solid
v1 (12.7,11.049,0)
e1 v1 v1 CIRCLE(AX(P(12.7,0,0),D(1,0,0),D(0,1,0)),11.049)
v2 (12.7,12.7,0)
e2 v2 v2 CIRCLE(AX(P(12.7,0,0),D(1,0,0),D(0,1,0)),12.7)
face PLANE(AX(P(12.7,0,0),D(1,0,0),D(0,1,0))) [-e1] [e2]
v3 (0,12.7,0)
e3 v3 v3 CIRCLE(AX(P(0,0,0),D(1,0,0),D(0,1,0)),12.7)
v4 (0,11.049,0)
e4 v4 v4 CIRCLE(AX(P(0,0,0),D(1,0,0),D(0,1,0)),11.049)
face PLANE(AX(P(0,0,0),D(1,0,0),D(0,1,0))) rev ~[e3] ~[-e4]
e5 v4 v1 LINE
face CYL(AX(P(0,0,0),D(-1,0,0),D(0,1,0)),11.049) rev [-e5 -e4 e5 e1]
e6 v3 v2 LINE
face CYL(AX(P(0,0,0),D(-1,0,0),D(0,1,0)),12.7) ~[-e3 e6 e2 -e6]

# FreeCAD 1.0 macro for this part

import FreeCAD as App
import Part
import Sketcher
from FreeCAD import Vector
Q = App.Units.Quantity

doc = App.newDocument("Part")
body = doc.addObject("PartDesign::Body", "Body")

sketch1 = body.newObject("Sketcher::SketchObject", "Sketch")
sketch1.AttachmentSupport = (doc.getObject("YZ_Plane"), [""])
sketch1.MapMode = "FlatFace"
sketch1.addGeometry([
    Part.Circle(Vector(0, 0, 0), Vector(0, 0, 1), 13),
    Part.Circle(Vector(0, 0, 0), Vector(0, 0, 1), 11),
], False)
sketch1.addConstraint([
    Sketcher.Constraint("Coincident", 0, 3, -1, 1),
    Sketcher.Constraint("Coincident", 1, 3, -1, 1),
    Sketcher.Constraint("Diameter", 0, Q("1 in")),
    Sketcher.Constraint("Diameter", 1, Q("0.87 in")),
])
pad1 = body.newObject("PartDesign::Pad", "Pad")
pad1.Profile = sketch1
pad1.Length = Q("0.5 in")

doc.recompute()
